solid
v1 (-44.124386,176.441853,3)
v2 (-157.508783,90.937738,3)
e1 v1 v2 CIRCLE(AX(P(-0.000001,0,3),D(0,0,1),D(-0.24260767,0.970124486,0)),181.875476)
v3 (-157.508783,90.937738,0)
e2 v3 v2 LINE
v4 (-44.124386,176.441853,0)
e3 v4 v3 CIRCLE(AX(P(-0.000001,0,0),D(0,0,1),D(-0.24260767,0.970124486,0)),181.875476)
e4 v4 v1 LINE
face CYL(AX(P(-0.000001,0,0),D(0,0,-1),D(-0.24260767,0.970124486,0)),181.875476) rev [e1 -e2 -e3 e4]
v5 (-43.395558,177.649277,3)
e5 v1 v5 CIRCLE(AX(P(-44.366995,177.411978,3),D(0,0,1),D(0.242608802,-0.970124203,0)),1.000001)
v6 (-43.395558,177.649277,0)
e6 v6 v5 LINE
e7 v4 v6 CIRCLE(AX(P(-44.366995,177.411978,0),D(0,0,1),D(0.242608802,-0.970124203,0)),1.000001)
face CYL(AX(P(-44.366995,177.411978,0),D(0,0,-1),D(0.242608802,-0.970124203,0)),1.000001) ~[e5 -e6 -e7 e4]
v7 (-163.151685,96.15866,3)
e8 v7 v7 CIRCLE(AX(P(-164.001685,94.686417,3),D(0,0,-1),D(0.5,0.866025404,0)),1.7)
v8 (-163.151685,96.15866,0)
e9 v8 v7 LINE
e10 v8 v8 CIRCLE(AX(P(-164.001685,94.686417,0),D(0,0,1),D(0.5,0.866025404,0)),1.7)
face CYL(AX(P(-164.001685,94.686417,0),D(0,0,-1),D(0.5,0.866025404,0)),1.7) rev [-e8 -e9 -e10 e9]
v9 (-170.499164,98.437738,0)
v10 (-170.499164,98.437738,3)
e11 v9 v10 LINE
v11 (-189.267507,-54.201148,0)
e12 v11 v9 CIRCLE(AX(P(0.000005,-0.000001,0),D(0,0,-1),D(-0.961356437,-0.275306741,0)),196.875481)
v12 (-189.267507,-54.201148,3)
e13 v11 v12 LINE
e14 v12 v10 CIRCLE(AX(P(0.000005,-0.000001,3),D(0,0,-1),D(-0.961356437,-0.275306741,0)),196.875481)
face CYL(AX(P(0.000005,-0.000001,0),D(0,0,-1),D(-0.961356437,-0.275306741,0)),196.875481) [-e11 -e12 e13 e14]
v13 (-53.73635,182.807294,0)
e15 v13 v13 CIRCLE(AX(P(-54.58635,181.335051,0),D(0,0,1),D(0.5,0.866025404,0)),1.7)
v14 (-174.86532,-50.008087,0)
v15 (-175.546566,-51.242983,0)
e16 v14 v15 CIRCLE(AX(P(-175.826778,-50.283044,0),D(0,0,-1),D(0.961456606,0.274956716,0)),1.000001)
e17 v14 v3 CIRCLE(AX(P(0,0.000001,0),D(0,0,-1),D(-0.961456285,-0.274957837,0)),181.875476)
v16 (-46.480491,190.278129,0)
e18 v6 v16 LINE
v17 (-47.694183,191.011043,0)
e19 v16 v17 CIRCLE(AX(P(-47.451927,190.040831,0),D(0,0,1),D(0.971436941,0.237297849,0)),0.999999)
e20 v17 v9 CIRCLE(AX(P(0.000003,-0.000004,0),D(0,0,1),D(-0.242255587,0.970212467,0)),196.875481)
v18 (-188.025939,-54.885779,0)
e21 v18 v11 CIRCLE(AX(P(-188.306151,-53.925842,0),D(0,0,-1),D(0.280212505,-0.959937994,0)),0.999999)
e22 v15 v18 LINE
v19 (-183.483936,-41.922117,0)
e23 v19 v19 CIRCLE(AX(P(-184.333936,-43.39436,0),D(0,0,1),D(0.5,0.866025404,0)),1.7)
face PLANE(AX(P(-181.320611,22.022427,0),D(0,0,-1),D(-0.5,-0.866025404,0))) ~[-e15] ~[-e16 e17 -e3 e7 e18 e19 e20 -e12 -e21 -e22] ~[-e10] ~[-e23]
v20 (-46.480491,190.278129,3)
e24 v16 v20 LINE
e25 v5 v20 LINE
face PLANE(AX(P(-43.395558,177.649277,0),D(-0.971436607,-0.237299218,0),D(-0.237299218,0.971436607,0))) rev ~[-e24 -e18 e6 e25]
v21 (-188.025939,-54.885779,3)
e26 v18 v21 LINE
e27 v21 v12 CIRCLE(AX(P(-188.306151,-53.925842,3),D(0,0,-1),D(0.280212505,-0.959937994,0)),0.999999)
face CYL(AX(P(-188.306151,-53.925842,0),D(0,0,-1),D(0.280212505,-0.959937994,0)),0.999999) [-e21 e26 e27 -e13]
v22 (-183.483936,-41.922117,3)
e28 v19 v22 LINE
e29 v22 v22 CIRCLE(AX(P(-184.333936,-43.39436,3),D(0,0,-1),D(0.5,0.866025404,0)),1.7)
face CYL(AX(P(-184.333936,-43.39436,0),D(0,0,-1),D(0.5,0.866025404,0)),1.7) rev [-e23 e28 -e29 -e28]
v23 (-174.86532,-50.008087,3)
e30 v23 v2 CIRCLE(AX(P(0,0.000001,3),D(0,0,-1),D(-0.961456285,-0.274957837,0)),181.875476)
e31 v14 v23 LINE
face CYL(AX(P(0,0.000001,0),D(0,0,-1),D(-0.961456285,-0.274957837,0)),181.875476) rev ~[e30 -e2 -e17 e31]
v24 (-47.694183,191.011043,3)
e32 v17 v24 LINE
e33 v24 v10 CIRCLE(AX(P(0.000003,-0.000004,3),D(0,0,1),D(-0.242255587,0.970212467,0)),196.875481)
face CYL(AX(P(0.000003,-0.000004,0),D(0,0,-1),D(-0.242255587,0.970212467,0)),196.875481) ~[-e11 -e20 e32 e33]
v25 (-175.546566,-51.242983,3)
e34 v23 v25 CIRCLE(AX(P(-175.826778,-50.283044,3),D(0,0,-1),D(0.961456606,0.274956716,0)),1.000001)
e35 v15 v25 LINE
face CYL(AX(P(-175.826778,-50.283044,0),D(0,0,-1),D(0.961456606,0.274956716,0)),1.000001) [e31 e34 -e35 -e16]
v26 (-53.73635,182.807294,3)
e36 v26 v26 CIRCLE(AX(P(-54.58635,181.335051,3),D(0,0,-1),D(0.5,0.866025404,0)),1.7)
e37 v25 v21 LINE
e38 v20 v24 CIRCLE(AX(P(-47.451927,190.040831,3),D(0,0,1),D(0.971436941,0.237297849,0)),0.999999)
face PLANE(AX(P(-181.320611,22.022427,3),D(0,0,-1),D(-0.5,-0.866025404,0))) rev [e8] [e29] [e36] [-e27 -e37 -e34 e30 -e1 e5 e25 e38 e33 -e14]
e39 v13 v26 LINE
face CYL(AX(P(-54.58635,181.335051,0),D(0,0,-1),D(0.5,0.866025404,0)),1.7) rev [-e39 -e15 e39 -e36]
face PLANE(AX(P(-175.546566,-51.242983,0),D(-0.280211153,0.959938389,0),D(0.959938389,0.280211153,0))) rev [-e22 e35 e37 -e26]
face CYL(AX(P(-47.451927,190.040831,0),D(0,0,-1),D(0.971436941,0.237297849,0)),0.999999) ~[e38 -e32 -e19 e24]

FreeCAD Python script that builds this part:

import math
import FreeCAD as App
import Part
import Sketcher

V = App.Vector

doc = App.newDocument("Part")
body = doc.addObject("PartDesign::Body", "Body")

# Sketch on XY plane
sketch1 = body.newObject("Sketcher::SketchObject", "Sketch")
sketch1.AttachmentSupport = (doc.getObject("XY_Plane"), [""])
sketch1.MapMode = "FlatFace"
sketch1.addGeometry([
    Part.LineSegment(V(0, 196.875477, 0), V(0, 181.875477, 0)),  # 0
    Part.ArcOfCircle(Part.Circle(V(0, 0.000001, 0), V(0, 0, 1), 181.875476), math.radians(44.040498), math.radians(90)),  # 1
    Part.ArcOfCircle(Part.Circle(V(131.459782, 127.128934, 0), V(0, 0, 1), 1.000001), math.radians(-135.959435), math.radians(-46.272832)),  # 2
    Part.LineSegment(V(132.151008, 126.406294, 0), V(141.545448, 135.39235, 0)),  # 3
    Part.ArcOfCircle(Part.Circle(V(140.854224, 136.114989, 0), V(0, 0, 1), 0.999999), math.radians(-46.272888), math.radians(44.019737)),  # 4
    Part.ArcOfCircle(Part.Circle(V(-0.000002, -0.000004, 0), V(0, 0, 1), 196.875481), math.radians(44.019705), math.radians(89.999999)),  # 5
], False)
sketch1.addConstraint([
    Sketcher.Constraint("Coincident", 0, 2, 1, 2),
    Sketcher.Constraint("Coincident", 1, 1, 2, 1),
    Sketcher.Constraint("Coincident", 2, 2, 3, 1),
    Sketcher.Constraint("Coincident", 3, 2, 4, 1),
    Sketcher.Constraint("Coincident", 4, 2, 5, 1),
    Sketcher.Constraint("Coincident", 5, 2, 0, 1),
    Sketcher.Constraint("Vertical", 0),
    Sketcher.Constraint("Coincident", 1, 3, -1, 1),
    Sketcher.Constraint("Coincident", 5, 3, -1, 1),
    Sketcher.Constraint("PointOnObject", 0, 2, -2),
    Sketcher.Constraint("Radius", 2, 1.000001),
    Sketcher.Constraint("Radius", 4, 0.999999),
    Sketcher.Constraint("DistanceY", 0, 2, 0, 1, 15.0),
    Sketcher.Constraint("Radius", 5, 196.875481),
    Sketcher.Constraint("DistanceX", 4, 3, 4, 2, 0.7191),
    Sketcher.Constraint("DistanceY", 2, 2, 4, 2, 10.403601),
    Sketcher.Constraint("Distance", 3, 13.000181),
    Sketcher.Constraint("DistanceY", -1, 1, 4, 3, 136.114989),
    Sketcher.Constraint("DistanceX", -1, 1, 2, 2, 132.151008),
    Sketcher.Constraint("DistanceX", 1, 1, 2, 3, 0.718848),
])
pad1 = body.newObject("PartDesign::Pad", "Pad")
pad1.Profile = sketch1
pad1.Length = 3
doc.recompute()

mirrored = body.newObject("PartDesign::Mirrored", "Mirrored")
mirrored.Originals = [pad1]
mirrored.MirrorPlane = (doc.getObject("YZ_Plane"), [""])
body.Tip = mirrored

# Sketch on XY plane
sketch2 = body.newObject("Sketcher::SketchObject", "Sketch001")
sketch2.AttachmentSupport = (doc.getObject("XY_Plane"), [""])
sketch2.MapMode = "FlatFace"
sketch2.addGeometry([
    Part.Circle(V(129.747586, 137.940691, 0), V(0, 0, 1), 1.7),
    Part.Circle(V(0, 189.372834, 0), V(0, 0, 1), 1.7),
    Part.Circle(V(-129.747586, 137.940691, 0), V(0, 0, 1), 1.7),
], False)
sketch2.addConstraint([
    Sketcher.Constraint("Equal", 0, 1),
    Sketcher.Constraint("Equal", 1, 2),
    Sketcher.Constraint("Symmetric", 0, 3, 2, 3, -2),
    Sketcher.Constraint("PointOnObject", 1, 3, -2),
    Sketcher.Constraint("Diameter", 0, 3.4),
    Sketcher.Constraint("DistanceY", -1, 1, 0, 3, 137.940691),
    Sketcher.Constraint("DistanceX", -1, 1, 0, 3, 129.747586),
    Sketcher.Constraint("DistanceY", -1, 1, 1, 3, 189.372834),
])
pocket1 = body.newObject("PartDesign::Pocket", "Pocket")
pocket1.Profile = sketch2
pocket1.Type = "ThroughAll"
pocket1.Midplane = True
body2 = doc.addObject("PartDesign::Body", "Body001")
doc.recompute()

body.Placement = App.Placement(V(0, 0, 0), App.Rotation(V(0, 0, 1), 60))
boolean = body2.newObject("PartDesign::Boolean", "Boolean")
boolean.Type = "Fuse"
boolean.addObjects([body])

doc.recompute()
